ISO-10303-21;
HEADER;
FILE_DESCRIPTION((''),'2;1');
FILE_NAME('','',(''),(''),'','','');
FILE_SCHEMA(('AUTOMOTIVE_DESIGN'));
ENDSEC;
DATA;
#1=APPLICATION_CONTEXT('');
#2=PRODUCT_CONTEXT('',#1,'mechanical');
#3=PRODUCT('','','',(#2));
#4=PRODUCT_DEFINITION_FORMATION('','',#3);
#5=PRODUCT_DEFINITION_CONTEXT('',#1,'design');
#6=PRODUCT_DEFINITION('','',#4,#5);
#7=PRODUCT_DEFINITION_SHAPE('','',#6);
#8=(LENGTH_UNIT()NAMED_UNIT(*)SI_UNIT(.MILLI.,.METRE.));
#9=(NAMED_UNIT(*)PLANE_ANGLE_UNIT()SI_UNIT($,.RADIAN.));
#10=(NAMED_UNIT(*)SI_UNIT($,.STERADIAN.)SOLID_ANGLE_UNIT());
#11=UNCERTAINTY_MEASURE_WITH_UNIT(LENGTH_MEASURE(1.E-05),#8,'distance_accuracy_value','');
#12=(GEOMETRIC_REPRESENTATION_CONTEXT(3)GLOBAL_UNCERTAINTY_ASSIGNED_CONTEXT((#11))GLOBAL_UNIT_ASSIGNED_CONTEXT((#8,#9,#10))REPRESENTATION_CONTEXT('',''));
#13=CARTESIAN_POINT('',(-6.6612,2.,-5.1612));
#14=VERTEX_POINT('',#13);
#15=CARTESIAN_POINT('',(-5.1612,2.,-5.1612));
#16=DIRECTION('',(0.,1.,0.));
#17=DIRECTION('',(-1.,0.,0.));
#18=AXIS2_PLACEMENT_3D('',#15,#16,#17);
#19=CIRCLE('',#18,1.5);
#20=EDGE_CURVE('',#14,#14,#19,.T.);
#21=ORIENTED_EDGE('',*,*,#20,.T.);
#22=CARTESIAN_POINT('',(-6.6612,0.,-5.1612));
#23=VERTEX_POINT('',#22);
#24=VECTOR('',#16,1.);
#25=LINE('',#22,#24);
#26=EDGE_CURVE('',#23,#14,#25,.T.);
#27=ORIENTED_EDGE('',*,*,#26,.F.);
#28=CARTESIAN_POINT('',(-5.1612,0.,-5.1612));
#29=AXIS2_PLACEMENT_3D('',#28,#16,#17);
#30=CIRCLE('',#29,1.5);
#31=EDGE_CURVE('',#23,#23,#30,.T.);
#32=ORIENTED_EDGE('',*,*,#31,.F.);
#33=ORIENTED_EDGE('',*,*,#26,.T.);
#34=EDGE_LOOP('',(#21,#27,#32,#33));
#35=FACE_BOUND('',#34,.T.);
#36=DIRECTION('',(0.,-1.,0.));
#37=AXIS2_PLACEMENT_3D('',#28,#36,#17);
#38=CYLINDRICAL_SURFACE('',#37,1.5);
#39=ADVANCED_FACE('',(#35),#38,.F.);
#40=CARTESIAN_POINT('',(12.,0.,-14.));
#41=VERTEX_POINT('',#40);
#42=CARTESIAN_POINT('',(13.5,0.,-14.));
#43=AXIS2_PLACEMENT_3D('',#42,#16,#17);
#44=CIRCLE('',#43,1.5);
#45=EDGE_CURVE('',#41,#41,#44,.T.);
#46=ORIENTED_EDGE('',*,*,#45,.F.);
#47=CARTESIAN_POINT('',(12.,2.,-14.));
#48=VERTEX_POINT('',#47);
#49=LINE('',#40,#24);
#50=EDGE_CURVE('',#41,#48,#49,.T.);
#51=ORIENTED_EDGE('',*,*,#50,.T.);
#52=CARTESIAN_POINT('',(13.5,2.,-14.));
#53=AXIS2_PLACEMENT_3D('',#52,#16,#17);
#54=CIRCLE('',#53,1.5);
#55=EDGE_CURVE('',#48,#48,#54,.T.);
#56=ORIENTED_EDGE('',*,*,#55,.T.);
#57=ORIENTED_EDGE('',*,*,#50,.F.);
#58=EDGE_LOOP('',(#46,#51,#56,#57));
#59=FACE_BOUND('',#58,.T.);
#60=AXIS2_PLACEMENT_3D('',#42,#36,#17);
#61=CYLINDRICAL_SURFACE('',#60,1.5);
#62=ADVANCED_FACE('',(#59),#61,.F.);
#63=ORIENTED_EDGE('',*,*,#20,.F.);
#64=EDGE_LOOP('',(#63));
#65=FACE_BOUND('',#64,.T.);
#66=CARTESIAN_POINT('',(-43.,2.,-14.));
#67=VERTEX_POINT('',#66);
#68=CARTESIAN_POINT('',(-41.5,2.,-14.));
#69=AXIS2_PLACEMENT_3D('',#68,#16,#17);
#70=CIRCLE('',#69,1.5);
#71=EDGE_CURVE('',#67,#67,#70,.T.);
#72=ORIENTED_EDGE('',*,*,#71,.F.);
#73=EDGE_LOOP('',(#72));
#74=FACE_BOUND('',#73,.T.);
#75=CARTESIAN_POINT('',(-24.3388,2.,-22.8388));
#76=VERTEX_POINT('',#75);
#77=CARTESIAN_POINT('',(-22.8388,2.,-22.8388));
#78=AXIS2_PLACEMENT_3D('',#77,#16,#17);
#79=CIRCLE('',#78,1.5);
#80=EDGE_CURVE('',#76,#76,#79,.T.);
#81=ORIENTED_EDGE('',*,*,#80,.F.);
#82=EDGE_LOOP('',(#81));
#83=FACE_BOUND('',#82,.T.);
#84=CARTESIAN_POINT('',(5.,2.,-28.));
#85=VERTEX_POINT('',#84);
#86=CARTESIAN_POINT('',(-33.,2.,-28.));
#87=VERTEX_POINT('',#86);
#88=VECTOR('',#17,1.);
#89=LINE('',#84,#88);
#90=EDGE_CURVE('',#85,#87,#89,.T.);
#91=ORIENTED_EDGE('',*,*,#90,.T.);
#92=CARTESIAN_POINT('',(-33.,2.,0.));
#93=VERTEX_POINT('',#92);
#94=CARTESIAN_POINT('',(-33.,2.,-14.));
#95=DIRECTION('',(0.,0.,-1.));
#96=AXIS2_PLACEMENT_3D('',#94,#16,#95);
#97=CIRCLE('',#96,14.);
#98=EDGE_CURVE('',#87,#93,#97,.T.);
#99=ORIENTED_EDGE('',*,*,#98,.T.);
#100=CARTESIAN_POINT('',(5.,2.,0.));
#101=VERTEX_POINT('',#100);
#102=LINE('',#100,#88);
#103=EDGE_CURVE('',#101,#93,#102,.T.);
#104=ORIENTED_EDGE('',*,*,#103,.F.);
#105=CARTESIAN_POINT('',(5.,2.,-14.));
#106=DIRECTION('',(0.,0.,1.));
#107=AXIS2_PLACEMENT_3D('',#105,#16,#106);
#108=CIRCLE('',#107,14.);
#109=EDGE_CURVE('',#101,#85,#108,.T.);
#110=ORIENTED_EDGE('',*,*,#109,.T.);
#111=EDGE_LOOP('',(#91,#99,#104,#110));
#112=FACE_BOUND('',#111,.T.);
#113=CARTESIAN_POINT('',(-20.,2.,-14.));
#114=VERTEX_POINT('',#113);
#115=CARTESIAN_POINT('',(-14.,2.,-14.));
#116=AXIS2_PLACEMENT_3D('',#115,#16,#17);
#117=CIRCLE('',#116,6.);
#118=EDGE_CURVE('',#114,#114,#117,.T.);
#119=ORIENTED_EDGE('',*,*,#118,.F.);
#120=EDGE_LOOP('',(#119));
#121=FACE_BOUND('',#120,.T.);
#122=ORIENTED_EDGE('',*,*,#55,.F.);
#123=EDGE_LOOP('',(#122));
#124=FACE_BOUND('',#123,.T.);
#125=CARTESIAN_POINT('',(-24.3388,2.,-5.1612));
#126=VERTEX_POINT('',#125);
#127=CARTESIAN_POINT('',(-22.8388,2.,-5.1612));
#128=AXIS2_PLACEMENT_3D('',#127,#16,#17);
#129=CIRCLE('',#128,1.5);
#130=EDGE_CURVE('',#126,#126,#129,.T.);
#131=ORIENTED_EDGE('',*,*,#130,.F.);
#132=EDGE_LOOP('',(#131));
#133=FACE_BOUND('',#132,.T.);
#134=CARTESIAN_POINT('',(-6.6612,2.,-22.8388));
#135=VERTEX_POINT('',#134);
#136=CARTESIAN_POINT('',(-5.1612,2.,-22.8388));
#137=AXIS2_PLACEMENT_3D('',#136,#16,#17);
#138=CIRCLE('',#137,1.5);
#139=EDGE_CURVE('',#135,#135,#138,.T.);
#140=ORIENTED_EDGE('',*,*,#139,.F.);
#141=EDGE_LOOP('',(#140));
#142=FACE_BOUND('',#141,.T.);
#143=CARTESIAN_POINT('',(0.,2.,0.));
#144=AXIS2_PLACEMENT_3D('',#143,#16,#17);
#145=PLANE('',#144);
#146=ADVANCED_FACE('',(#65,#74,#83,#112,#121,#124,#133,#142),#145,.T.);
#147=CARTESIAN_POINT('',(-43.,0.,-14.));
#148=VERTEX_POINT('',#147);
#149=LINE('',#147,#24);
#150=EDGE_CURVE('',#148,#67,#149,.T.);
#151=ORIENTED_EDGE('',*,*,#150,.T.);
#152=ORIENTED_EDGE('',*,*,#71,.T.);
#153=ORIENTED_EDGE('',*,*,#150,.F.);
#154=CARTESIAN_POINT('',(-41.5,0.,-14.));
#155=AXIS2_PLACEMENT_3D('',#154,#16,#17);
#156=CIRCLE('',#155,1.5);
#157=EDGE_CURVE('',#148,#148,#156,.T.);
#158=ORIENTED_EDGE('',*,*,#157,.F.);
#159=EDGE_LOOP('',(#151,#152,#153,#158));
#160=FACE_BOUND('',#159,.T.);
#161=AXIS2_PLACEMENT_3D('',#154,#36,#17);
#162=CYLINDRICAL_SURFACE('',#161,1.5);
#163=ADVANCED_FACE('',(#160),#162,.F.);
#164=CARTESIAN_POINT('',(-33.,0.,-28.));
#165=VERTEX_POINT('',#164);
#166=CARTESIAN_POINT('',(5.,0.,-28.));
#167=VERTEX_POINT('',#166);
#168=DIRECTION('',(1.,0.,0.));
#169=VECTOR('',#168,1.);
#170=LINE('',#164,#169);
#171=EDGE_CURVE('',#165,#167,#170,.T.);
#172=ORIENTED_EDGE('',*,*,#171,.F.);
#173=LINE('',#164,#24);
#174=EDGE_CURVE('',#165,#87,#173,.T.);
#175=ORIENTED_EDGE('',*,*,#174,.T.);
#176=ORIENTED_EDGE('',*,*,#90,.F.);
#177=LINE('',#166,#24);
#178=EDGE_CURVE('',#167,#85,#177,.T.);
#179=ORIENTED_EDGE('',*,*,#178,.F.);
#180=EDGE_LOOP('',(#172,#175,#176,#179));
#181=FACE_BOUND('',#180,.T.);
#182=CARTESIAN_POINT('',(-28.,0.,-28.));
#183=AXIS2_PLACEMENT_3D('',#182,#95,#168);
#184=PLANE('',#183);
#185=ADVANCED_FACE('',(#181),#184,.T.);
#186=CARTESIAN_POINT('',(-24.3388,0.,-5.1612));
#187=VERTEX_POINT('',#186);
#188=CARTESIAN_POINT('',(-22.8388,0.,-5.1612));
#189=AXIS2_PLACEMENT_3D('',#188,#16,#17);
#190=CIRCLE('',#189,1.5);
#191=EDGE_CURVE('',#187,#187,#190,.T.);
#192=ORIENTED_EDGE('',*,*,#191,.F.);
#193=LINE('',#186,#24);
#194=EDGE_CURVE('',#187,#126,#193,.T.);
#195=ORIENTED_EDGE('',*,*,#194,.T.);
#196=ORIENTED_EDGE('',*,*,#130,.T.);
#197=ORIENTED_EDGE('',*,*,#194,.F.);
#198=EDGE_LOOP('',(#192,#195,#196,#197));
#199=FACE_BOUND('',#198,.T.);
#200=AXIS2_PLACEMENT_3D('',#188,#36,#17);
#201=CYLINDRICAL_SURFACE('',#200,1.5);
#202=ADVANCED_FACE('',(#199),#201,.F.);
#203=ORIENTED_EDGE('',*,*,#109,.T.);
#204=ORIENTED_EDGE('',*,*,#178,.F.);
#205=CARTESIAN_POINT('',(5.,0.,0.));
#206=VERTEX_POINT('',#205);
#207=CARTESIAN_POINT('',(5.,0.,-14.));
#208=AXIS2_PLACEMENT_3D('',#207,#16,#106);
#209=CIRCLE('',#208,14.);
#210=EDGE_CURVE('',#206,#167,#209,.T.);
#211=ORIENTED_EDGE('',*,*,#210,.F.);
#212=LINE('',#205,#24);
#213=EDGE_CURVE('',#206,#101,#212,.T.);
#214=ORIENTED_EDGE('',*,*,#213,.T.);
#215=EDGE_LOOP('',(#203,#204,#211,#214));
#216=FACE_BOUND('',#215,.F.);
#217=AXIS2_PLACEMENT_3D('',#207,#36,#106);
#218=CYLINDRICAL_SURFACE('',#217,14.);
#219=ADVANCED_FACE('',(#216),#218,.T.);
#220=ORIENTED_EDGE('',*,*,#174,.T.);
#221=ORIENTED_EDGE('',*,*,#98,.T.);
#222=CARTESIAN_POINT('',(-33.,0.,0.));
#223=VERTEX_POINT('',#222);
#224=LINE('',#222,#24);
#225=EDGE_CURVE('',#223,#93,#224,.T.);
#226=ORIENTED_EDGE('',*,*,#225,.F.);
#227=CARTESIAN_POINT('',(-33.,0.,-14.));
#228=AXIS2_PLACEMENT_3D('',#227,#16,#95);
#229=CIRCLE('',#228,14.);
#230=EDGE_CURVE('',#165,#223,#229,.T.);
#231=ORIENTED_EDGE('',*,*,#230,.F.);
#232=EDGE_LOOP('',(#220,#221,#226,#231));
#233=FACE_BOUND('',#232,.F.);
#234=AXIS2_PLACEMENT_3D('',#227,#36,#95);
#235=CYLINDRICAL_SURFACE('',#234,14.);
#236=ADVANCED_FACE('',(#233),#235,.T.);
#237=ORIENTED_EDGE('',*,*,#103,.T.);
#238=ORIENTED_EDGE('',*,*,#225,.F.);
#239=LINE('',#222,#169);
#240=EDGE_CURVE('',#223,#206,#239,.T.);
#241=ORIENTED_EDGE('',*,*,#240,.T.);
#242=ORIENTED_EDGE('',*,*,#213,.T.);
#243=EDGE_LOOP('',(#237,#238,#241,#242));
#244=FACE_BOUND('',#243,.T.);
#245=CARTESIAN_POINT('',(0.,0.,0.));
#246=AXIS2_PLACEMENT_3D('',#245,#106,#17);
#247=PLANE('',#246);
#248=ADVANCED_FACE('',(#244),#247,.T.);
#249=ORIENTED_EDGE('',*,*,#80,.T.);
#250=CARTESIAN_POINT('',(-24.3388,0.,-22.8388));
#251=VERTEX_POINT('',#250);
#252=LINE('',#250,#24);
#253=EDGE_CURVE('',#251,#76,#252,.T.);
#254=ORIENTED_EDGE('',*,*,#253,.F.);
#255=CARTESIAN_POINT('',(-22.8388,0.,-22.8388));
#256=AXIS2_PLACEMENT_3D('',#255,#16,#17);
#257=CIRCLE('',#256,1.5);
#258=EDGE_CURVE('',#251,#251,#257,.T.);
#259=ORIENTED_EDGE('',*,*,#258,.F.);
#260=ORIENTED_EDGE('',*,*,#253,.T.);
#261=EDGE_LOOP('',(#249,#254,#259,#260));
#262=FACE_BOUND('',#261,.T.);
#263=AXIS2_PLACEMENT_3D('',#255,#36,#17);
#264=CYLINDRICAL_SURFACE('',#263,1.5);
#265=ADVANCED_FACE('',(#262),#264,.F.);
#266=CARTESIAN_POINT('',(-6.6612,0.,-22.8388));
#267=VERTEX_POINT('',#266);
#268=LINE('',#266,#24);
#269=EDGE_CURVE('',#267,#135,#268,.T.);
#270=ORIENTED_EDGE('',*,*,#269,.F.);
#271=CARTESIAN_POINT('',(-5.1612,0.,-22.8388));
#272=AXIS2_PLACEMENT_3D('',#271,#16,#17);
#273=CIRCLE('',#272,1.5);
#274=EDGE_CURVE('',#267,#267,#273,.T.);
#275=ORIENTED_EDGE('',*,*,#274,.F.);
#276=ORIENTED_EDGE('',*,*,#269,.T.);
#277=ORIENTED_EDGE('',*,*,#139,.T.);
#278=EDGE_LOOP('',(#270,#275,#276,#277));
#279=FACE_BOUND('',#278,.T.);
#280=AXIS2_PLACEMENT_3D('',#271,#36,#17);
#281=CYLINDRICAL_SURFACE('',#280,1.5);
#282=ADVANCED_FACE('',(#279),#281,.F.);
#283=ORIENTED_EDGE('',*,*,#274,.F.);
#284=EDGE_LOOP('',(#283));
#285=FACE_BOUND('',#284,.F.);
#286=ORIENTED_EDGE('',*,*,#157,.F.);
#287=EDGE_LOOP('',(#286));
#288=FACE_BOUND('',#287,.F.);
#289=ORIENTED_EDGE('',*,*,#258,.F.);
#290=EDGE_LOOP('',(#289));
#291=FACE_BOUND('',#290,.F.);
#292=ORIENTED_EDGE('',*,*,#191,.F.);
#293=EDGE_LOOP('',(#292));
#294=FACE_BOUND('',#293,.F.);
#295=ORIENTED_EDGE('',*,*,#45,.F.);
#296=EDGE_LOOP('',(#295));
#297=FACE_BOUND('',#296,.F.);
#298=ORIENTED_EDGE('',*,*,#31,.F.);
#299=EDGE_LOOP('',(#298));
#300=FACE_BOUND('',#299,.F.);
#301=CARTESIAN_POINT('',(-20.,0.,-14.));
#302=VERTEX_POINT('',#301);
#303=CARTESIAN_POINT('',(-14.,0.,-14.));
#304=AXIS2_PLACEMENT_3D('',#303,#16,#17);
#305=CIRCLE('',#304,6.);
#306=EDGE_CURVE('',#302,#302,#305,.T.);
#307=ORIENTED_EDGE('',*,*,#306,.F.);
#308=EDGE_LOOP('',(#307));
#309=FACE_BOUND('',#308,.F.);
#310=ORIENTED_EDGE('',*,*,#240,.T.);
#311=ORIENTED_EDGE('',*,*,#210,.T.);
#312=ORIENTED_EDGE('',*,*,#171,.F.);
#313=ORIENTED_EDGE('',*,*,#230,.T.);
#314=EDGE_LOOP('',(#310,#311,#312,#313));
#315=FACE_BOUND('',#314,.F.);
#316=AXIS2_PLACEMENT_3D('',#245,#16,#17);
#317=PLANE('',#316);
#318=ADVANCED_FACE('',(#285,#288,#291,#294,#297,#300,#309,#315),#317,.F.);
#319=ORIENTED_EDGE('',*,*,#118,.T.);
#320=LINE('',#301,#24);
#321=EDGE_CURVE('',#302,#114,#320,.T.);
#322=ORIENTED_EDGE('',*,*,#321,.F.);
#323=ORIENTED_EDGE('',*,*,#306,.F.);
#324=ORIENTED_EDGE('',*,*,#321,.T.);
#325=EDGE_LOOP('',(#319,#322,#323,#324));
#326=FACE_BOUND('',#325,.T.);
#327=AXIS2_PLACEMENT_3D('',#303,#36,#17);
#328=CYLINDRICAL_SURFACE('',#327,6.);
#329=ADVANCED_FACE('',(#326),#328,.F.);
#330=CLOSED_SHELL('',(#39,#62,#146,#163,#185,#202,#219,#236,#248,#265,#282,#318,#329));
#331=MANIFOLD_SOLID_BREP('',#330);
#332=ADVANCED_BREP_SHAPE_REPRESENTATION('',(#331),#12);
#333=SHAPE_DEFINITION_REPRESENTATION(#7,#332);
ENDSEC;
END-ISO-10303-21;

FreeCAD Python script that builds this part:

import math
import FreeCAD as App
import Part
import Sketcher
Q = App.Units.Quantity

doc = App.newDocument("Part")
params = doc.addObject("Spreadsheet::Sheet", "Params")
for row, (alias, value) in enumerate([
    ("sketch1_diameter", "3 mm"),
    ("sketch1_diameter2", "12 mm"),
    ("sketch1_radius", "14 mm"),
    ("sketch1_width", "38 mm"),
    ("pad1_length", "2 mm"),
], start=1):
    params.set(f"A{row}", alias)
    params.set(f"B{row}", "=" + value)
    params.setAlias(f"B{row}", alias)

body = doc.addObject("PartDesign::Body", "Body")

# Sketch on XZ plane
sketch1 = body.newObject("Sketcher::SketchObject", "Sketch")
sketch1.AttachmentSupport = (doc.getObject("XZ_Plane"), [""])
sketch1.MapMode = "FlatFace"
sketch1.addGeometry([
    Part.ArcOfCircle(Part.Circle(App.Vector(5, -14, 0), App.Vector(0, 0, 1), 14), math.radians(-90), math.radians(90)),  # 0
    Part.LineSegment(App.Vector(5, -28, 0), App.Vector(-33, -28, 0)),  # 1
    Part.ArcOfCircle(Part.Circle(App.Vector(-33, -14, 0), App.Vector(0, 0, 1), 14), math.radians(90), math.radians(270)),  # 2
    Part.LineSegment(App.Vector(-33, 0, 0), App.Vector(5, 0, 0)),  # 3
    Part.Circle(App.Vector(-5.2, -22.8, 0), App.Vector(0, 0, 1), 1.5),  # 4
    Part.Circle(App.Vector(-22.8, -22.8, 0), App.Vector(0, 0, 1), 1.5),  # 5
    Part.Circle(App.Vector(-5.2, -5.2, 0), App.Vector(0, 0, 1), 1.5),  # 6
    Part.Circle(App.Vector(-14, -14, 0), App.Vector(0, 0, 1), 6),  # 7
    Part.Circle(App.Vector(-22.8, -5.2, 0), App.Vector(0, 0, 1), 1.5),  # 8
    Part.Circle(App.Vector(-41.5, -14, 0), App.Vector(0, 0, 1), 1.5),  # 9
    Part.Circle(App.Vector(13.5, -14, 0), App.Vector(0, 0, 1), 1.5),  # 10
], False)
sketch1.addConstraint([
    Sketcher.Constraint("Tangent", 0, 1, 1, 1),
    Sketcher.Constraint("Tangent", 1, 2, 2, 2),
    Sketcher.Constraint("Tangent", 2, 1, 3, 1),
    Sketcher.Constraint("Tangent", 3, 2, 0, 2),
    Sketcher.Constraint("Horizontal", 1),
    Sketcher.Constraint("Horizontal", 3),
    Sketcher.Constraint("Equal", 4, 5),
    Sketcher.Constraint("Equal", 5, 6),
    Sketcher.Constraint("Equal", 6, 8),
    Sketcher.Constraint("Equal", 8, 9),
    Sketcher.Constraint("Equal", 9, 10),
    Sketcher.Constraint("PointOnObject", 2, 1, -1),
    Sketcher.Constraint("Horizontal", 4, 3, 5, 3),
    Sketcher.Constraint("Horizontal", 2, 3, 7, 3),
    Sketcher.Constraint("Horizontal", 6, 3, 8, 3),
    Sketcher.Constraint("Horizontal", 7, 3, 9, 3),
    Sketcher.Constraint("Horizontal", 9, 3, 10, 3),
    Sketcher.Constraint("Vertical", 4, 3, 6, 3),
    Sketcher.Constraint("Vertical", 5, 3, 8, 3),
    Sketcher.Constraint("Diameter", 4, Q("3 mm")),
    Sketcher.Constraint("Diameter", 7, Q("12 mm")),
    Sketcher.Constraint("Radius", 0, Q("14 mm")),
    Sketcher.Constraint("DistanceX", -1, 1, 0, 3, Q("5 mm")),
    Sketcher.Constraint("DistanceX", 9, 3, 2, 3, Q("8.5 mm")),
    Sketcher.Constraint("DistanceX", 0, 3, 10, 3, Q("8.5 mm")),
    Sketcher.Constraint("DistanceX", 1, 2, 1, 1, Q("38 mm")),
    Sketcher.Constraint("DistanceX", 7, 3, -1, 1, Q("14 mm")),
    Sketcher.Constraint("DistanceX", 4, 3, -1, 1, Q("5.1612 mm")),
    Sketcher.Constraint("DistanceY", 4, 3, -1, 1, Q("22.8388 mm")),
    Sketcher.Constraint("DistanceX", 5, 3, -1, 1, Q("22.8388 mm")),
    Sketcher.Constraint("DistanceY", 6, 3, -1, 1, Q("5.1612 mm")),
])
sketch1.setExpression("Constraints[19]", "Params.sketch1_diameter")
sketch1.setExpression("Constraints[20]", "Params.sketch1_diameter2")
sketch1.setExpression("Constraints[21]", "Params.sketch1_radius")
sketch1.setExpression("Constraints[25]", "Params.sketch1_width")
pad1 = body.newObject("PartDesign::Pad", "Pad")
pad1.Profile = sketch1
pad1.setExpression("Length", "Params.pad1_length")
pad1.Reversed = True

doc.recompute()
